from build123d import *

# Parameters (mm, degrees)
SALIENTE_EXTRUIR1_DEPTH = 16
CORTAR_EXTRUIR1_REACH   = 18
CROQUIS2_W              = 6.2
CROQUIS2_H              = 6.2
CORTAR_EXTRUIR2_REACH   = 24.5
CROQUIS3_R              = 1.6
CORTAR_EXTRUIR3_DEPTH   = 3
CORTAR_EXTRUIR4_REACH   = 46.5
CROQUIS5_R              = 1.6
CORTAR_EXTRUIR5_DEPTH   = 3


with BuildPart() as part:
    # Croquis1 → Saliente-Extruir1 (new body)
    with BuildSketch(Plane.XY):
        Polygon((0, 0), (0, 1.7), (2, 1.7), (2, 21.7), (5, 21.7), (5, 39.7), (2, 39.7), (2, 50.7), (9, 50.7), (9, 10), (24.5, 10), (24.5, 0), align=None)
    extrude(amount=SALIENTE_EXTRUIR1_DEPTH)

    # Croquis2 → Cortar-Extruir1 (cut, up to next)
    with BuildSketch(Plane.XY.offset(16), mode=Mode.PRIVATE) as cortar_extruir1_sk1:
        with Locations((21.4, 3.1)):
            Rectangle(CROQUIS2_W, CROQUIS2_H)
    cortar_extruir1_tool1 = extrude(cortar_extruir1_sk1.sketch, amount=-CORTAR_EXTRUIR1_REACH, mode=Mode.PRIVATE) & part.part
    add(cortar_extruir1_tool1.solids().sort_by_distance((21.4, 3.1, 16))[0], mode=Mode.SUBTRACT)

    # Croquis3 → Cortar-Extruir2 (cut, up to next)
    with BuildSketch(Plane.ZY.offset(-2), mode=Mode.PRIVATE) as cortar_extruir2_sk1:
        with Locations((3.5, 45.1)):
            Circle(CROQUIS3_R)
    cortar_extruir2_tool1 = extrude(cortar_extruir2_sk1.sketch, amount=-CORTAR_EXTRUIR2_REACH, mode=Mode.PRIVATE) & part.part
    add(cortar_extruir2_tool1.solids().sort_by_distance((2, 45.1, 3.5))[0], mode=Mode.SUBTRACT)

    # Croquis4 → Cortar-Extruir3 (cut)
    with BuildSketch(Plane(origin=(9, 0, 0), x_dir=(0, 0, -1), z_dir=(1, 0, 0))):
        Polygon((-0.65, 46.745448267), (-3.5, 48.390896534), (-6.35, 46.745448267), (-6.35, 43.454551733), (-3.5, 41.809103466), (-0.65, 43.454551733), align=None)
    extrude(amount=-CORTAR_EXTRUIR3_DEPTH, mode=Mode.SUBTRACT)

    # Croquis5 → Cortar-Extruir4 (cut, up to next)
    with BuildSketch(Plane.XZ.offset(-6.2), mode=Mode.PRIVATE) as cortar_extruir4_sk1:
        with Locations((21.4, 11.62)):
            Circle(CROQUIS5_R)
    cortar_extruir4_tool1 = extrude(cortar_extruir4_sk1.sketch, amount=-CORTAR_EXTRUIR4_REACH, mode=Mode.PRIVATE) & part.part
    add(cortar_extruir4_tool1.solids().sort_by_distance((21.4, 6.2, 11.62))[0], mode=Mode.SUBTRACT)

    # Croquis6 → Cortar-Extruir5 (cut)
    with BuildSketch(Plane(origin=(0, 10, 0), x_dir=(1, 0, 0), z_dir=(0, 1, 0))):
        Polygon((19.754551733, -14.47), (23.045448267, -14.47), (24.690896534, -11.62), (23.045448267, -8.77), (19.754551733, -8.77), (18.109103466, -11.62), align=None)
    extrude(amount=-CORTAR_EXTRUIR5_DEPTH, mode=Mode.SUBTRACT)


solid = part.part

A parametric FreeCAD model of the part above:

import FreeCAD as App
import Part
import Sketcher
from FreeCAD import Vector
Q = App.Units.Quantity


def add_polygon(sketch, points):
    """Adds a closed chain of lines whose ends are joined by coincident constraints."""
    first, n = sketch.GeometryCount, len(points)
    for a, b in zip(points, points[1:] + points[:1]):
        sketch.addGeometry(Part.LineSegment(App.Vector(*a, 0), App.Vector(*b, 0)), False)
    for i in range(n):
        sketch.addConstraint(Sketcher.Constraint("Coincident", first + i, 2, first + (i + 1) % n, 1))

doc = App.newDocument("Part")
body = doc.addObject("PartDesign::Body", "Body")

# Sketch on XY plane
sketch1 = body.newObject("Sketcher::SketchObject", "Sketch")
sketch1.AttachmentSupport = (doc.getObject("XY_Plane"), [""])
sketch1.MapMode = "FlatFace"
add_polygon(sketch1, [(0, 1.7), (0, 0), (24.5, 0), (24.5, 10), (9, 10), (9, 50.7), (2, 50.7), (2, 39.7), (5, 39.7), (5, 21.7), (2, 21.7), (2, 1.7)])  # lines 0-11
sketch1.addConstraint(Sketcher.Constraint("Vertical", 0))
sketch1.addConstraint(Sketcher.Constraint("Horizontal", 1))
sketch1.addConstraint(Sketcher.Constraint("Vertical", 2))
sketch1.addConstraint(Sketcher.Constraint("Horizontal", 3))
sketch1.addConstraint(Sketcher.Constraint("Vertical", 4))
sketch1.addConstraint(Sketcher.Constraint("Horizontal", 5))
sketch1.addConstraint(Sketcher.Constraint("Vertical", 6))
sketch1.addConstraint(Sketcher.Constraint("Horizontal", 7))
sketch1.addConstraint(Sketcher.Constraint("Vertical", 8))
sketch1.addConstraint(Sketcher.Constraint("Horizontal", 9))
sketch1.addConstraint(Sketcher.Constraint("Vertical", 10))
sketch1.addConstraint(Sketcher.Constraint("Horizontal", 11))
sketch1.addConstraint(Sketcher.Constraint("Coincident", 0, 2, -1, 1))
sketch1.addConstraint(Sketcher.Constraint("Vertical", 6, 2, 9, 2))
sketch1.addConstraint(Sketcher.Constraint("DistanceX", 5, 2, 5, 1, 7.0))
sketch1.addConstraint(Sketcher.Constraint("DistanceX", 7, 1, 7, 2, 3.0))
sketch1.addConstraint(Sketcher.Constraint("DistanceX", 11, 2, 11, 1, 2.0))
sketch1.addConstraint(Sketcher.Constraint("DistanceY", 2, 1, 2, 2, 10.0))
sketch1.addConstraint(Sketcher.Constraint("DistanceY", 6, 2, 6, 1, 11.0))
sketch1.addConstraint(Sketcher.Constraint("DistanceY", 8, 2, 8, 1, 18.0))
sketch1.addConstraint(Sketcher.Constraint("DistanceY", 10, 2, 10, 1, 20.0))
sketch1.addConstraint(Sketcher.Constraint("DistanceX", 1, 1, 1, 2, 24.5))
sketch1.addConstraint(Sketcher.Constraint("DistanceY", 0, 2, 0, 1, 1.7))
pad1 = body.newObject("PartDesign::Pad", "Pad")
pad1.Profile = sketch1
pad1.Length = 16

# Sketch on XY plane
sketch2 = body.newObject("Sketcher::SketchObject", "Sketch001")
sketch2.AttachmentSupport = (doc.getObject("XY_Plane"), [""])
sketch2.MapMode = "FlatFace"
sketch2.AttachmentOffset = App.Placement(Vector(0, 0, 16), App.Rotation())
add_polygon(sketch2, [(18, 6), (18, 0), (24, 0), (24, 6)])  # lines 0-3
sketch2.addConstraint(Sketcher.Constraint("Vertical", 0))
sketch2.addConstraint(Sketcher.Constraint("Horizontal", 1))
sketch2.addConstraint(Sketcher.Constraint("Vertical", 2))
sketch2.addConstraint(Sketcher.Constraint("Horizontal", 3))
sketch2.addConstraint(Sketcher.Constraint("PointOnObject", 0, 2, -1))
sketch2.addConstraint(Sketcher.Constraint("Equal", 3, 0))
sketch2.addConstraint(Sketcher.Constraint("DistanceX", 1, 1, 1, 2, 6.2))
sketch2.addConstraint(Sketcher.Constraint("DistanceX", -1, 1, 0, 2, 18.3))
pocket1 = body.newObject("PartDesign::Pocket", "Pocket")
pocket1.Profile = sketch2
pocket1.Type = "UpToFirst"

# Sketch on YZ plane
sketch3 = body.newObject("Sketcher::SketchObject", "Sketch002")
sketch3.AttachmentSupport = (doc.getObject("YZ_Plane"), [""])
sketch3.MapMode = "FlatFace"
sketch3.AttachmentOffset = App.Placement(Vector(0, 0, 2), App.Rotation())
sketch3.addGeometry(Part.Circle(Vector(45.1, 3.5, 0), Vector(0, 0, 1), 1.6), False)
sketch3.addConstraint(Sketcher.Constraint("Diameter", 0, 3.2))
sketch3.addConstraint(Sketcher.Constraint("DistanceX", -1, 1, 0, 3, 45.1))
sketch3.addConstraint(Sketcher.Constraint("DistanceY", -1, 1, 0, 3, 3.5))
pocket2 = body.newObject("PartDesign::Pocket", "Pocket001")
pocket2.Profile = sketch3
pocket2.Type = "UpToFirst"
pocket2.Reversed = True

# Sketch on YZ plane
sketch4 = body.newObject("Sketcher::SketchObject", "Sketch003")
sketch4.AttachmentSupport = (doc.getObject("YZ_Plane"), [""])
sketch4.MapMode = "FlatFace"
sketch4.AttachmentOffset = App.Placement(Vector(0, 0, 9), App.Rotation())
add_polygon(sketch4, [(46.7, 0.7), (48.4, 3.5), (46.7, 6.3), (43.5, 6.3), (41.8, 3.5), (43.5, 0.7)])  # lines 0-5
sketch4.addConstraint(Sketcher.Constraint("Horizontal", 2))
sketch4.addConstraint(Sketcher.Constraint("Horizontal", 5))
sketch4.addConstraint(Sketcher.Constraint("Parallel", 0, 3))
sketch4.addConstraint(Sketcher.Constraint("Parallel", 1, 4))
sketch4.addConstraint(Sketcher.Constraint("Horizontal", 0, 2, 3, 2))
sketch4.addConstraint(Sketcher.Constraint("Vertical", 2, 2, 4, 2))
sketch4.addConstraint(Sketcher.Constraint("Vertical", 1, 2, 5, 2))
sketch4.addConstraint(Sketcher.Constraint("Angle", 0, Q("60 deg")))
sketch4.addConstraint(Sketcher.Constraint("DistanceY", -1, 1, 0, 2, 3.5))
sketch4.addConstraint(Sketcher.Constraint("DistanceY", 4, 2, 2, 2, 5.7))
sketch4.addConstraint(Sketcher.Constraint("DistanceX", 2, 2, 2, 1, 3.290897))
sketch4.addConstraint(Sketcher.Constraint("DistanceX", -1, 1, 1, 2, 46.745448))
pocket3 = body.newObject("PartDesign::Pocket", "Pocket002")
pocket3.Profile = sketch4
pocket3.Length = 3

# Sketch on XZ plane
sketch5 = body.newObject("Sketcher::SketchObject", "Sketch004")
sketch5.AttachmentSupport = (doc.getObject("XZ_Plane"), [""])
sketch5.MapMode = "FlatFace"
sketch5.AttachmentOffset = App.Placement(Vector(0, 0, -6.2), App.Rotation())
sketch5.addGeometry(Part.Circle(Vector(21.4, 11.6, 0), Vector(0, 0, 1), 1.6), False)
sketch5.addConstraint(Sketcher.Constraint("Diameter", 0, 3.2))
sketch5.addConstraint(Sketcher.Constraint("DistanceX", -1, 1, 0, 3, 21.4))
sketch5.addConstraint(Sketcher.Constraint("DistanceY", -1, 1, 0, 3, 11.62))
pocket4 = body.newObject("PartDesign::Pocket", "Pocket003")
pocket4.Profile = sketch5
pocket4.Type = "UpToFirst"

# Sketch on XZ plane
sketch6 = body.newObject("Sketcher::SketchObject", "Sketch005")
sketch6.AttachmentSupport = (doc.getObject("XZ_Plane"), [""])
sketch6.MapMode = "FlatFace"
sketch6.AttachmentOffset = App.Placement(Vector(0, 0, -10), App.Rotation())
add_polygon(sketch6, [(19.8, 14.5), (23, 14.5), (24.7, 11.6), (23, 8.8), (19.8, 8.8), (18.1, 11.6)])  # lines 0-5
sketch6.addConstraint(Sketcher.Constraint("Horizontal", 0))
sketch6.addConstraint(Sketcher.Constraint("Horizontal", 3))
sketch6.addConstraint(Sketcher.Constraint("Parallel", 1, 4))
sketch6.addConstraint(Sketcher.Constraint("Parallel", 2, 5))
sketch6.addConstraint(Sketcher.Constraint("Horizontal", 1, 2, 4, 2))
sketch6.addConstraint(Sketcher.Constraint("Vertical", 0, 2, 2, 2))
sketch6.addConstraint(Sketcher.Constraint("Vertical", 3, 2, 5, 2))
sketch6.addConstraint(Sketcher.Constraint("Angle", 1, Q("-60 deg")))
sketch6.addConstraint(Sketcher.Constraint("DistanceY", 2, 2, 0, 2, 5.7))
sketch6.addConstraint(Sketcher.Constraint("DistanceY", -1, 1, 0, 2, 14.47))
sketch6.addConstraint(Sketcher.Constraint("DistanceX", 0, 1, 0, 2, 3.290897))
sketch6.addConstraint(Sketcher.Constraint("DistanceX", -1, 1, 0, 2, 23.045448))
pocket5 = body.newObject("PartDesign::Pocket", "Pocket004")
pocket5.Profile = sketch6
pocket5.Length = 3
pocket5.Reversed = True

doc.recompute()
